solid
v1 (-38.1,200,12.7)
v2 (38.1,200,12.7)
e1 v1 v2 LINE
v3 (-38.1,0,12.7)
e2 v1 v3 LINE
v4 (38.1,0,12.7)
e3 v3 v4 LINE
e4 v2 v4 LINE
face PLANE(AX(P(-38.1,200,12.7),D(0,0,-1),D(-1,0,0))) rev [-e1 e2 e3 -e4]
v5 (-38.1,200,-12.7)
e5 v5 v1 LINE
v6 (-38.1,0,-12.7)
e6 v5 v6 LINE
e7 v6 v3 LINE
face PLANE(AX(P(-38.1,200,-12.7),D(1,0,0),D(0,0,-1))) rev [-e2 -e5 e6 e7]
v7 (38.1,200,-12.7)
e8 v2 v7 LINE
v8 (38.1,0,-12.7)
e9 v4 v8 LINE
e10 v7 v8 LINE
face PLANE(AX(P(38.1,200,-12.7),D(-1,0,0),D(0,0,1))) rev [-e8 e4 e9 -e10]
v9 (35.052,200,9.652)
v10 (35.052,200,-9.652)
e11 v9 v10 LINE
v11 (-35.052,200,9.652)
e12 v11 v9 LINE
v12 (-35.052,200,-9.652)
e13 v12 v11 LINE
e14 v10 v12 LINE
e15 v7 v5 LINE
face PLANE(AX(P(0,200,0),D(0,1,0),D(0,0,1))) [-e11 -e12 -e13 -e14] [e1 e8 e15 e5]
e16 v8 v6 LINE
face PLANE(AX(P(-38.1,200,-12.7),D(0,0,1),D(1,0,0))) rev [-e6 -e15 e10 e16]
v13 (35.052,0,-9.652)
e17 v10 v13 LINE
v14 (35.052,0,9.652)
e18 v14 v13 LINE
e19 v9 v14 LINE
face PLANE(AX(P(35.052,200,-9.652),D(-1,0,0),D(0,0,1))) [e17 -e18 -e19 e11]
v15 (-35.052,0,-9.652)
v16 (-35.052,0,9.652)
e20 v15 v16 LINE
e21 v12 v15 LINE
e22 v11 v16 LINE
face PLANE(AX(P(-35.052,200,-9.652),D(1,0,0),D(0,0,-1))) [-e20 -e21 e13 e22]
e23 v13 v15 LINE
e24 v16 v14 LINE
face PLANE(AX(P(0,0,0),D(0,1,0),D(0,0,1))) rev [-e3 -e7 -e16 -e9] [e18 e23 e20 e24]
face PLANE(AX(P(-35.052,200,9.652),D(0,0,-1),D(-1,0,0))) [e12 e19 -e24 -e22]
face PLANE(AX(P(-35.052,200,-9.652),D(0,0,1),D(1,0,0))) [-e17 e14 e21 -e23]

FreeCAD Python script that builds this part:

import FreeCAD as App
import Part
import Sketcher
Q = App.Units.Quantity

doc = App.newDocument("Part")
body = doc.addObject("PartDesign::Body", "Body")

# Sketch on XZ plane
sketch1 = body.newObject("Sketcher::SketchObject", "Sketch")
sketch1.AttachmentSupport = (doc.getObject("XZ_Plane"), [""])
sketch1.MapMode = "FlatFace"
sketch1.addGeometry([
    Part.LineSegment(App.Vector(-38, -13, 0), App.Vector(-38, 13, 0)),  # 0
    Part.LineSegment(App.Vector(-38, 13, 0), App.Vector(38, 13, 0)),  # 1
    Part.LineSegment(App.Vector(38, 13, 0), App.Vector(38, -13, 0)),  # 2
    Part.LineSegment(App.Vector(38, -13, 0), App.Vector(-38, -13, 0)),  # 3
    Part.LineSegment(App.Vector(35, 10, 0), App.Vector(-35, 10, 0)),  # 4
    Part.LineSegment(App.Vector(-35, 10, 0), App.Vector(-35, -10, 0)),  # 5
    Part.LineSegment(App.Vector(-35, -10, 0), App.Vector(35, -10, 0)),  # 6
    Part.LineSegment(App.Vector(35, -10, 0), App.Vector(35, 10, 0)),  # 7
], False)
sketch1.addConstraint([
    Sketcher.Constraint("Coincident", 0, 2, 1, 1),
    Sketcher.Constraint("Coincident", 1, 2, 2, 1),
    Sketcher.Constraint("Coincident", 2, 2, 3, 1),
    Sketcher.Constraint("Coincident", 3, 2, 0, 1),
    Sketcher.Constraint("Coincident", 4, 2, 5, 1),
    Sketcher.Constraint("Coincident", 5, 2, 6, 1),
    Sketcher.Constraint("Coincident", 6, 2, 7, 1),
    Sketcher.Constraint("Coincident", 7, 2, 4, 1),
    Sketcher.Constraint("Vertical", 0),
    Sketcher.Constraint("Horizontal", 1),
    Sketcher.Constraint("Vertical", 2),
    Sketcher.Constraint("Horizontal", 3),
    Sketcher.Constraint("Horizontal", 4),
    Sketcher.Constraint("Vertical", 5),
    Sketcher.Constraint("Horizontal", 6),
    Sketcher.Constraint("Vertical", 7),
    Sketcher.Constraint("Symmetric", 0, 2, 2, 2, -1, 1),
    Sketcher.Constraint("Symmetric", 4, 2, 6, 2, -1, 1),
    Sketcher.Constraint("DistanceX", 1, 1, 1, 2, Q("3 in")),
    Sketcher.Constraint("DistanceY", 0, 1, 0, 2, Q("1 in")),
    Sketcher.Constraint("DistanceX", 4, 2, 4, 1, Q("2.76 in")),
    Sketcher.Constraint("DistanceY", 5, 2, 5, 1, Q("0.76 in")),
])
pad1 = body.newObject("PartDesign::Pad", "Pad")
pad1.Profile = sketch1
pad1.Length = 200
pad1.Reversed = True

doc.recompute()
